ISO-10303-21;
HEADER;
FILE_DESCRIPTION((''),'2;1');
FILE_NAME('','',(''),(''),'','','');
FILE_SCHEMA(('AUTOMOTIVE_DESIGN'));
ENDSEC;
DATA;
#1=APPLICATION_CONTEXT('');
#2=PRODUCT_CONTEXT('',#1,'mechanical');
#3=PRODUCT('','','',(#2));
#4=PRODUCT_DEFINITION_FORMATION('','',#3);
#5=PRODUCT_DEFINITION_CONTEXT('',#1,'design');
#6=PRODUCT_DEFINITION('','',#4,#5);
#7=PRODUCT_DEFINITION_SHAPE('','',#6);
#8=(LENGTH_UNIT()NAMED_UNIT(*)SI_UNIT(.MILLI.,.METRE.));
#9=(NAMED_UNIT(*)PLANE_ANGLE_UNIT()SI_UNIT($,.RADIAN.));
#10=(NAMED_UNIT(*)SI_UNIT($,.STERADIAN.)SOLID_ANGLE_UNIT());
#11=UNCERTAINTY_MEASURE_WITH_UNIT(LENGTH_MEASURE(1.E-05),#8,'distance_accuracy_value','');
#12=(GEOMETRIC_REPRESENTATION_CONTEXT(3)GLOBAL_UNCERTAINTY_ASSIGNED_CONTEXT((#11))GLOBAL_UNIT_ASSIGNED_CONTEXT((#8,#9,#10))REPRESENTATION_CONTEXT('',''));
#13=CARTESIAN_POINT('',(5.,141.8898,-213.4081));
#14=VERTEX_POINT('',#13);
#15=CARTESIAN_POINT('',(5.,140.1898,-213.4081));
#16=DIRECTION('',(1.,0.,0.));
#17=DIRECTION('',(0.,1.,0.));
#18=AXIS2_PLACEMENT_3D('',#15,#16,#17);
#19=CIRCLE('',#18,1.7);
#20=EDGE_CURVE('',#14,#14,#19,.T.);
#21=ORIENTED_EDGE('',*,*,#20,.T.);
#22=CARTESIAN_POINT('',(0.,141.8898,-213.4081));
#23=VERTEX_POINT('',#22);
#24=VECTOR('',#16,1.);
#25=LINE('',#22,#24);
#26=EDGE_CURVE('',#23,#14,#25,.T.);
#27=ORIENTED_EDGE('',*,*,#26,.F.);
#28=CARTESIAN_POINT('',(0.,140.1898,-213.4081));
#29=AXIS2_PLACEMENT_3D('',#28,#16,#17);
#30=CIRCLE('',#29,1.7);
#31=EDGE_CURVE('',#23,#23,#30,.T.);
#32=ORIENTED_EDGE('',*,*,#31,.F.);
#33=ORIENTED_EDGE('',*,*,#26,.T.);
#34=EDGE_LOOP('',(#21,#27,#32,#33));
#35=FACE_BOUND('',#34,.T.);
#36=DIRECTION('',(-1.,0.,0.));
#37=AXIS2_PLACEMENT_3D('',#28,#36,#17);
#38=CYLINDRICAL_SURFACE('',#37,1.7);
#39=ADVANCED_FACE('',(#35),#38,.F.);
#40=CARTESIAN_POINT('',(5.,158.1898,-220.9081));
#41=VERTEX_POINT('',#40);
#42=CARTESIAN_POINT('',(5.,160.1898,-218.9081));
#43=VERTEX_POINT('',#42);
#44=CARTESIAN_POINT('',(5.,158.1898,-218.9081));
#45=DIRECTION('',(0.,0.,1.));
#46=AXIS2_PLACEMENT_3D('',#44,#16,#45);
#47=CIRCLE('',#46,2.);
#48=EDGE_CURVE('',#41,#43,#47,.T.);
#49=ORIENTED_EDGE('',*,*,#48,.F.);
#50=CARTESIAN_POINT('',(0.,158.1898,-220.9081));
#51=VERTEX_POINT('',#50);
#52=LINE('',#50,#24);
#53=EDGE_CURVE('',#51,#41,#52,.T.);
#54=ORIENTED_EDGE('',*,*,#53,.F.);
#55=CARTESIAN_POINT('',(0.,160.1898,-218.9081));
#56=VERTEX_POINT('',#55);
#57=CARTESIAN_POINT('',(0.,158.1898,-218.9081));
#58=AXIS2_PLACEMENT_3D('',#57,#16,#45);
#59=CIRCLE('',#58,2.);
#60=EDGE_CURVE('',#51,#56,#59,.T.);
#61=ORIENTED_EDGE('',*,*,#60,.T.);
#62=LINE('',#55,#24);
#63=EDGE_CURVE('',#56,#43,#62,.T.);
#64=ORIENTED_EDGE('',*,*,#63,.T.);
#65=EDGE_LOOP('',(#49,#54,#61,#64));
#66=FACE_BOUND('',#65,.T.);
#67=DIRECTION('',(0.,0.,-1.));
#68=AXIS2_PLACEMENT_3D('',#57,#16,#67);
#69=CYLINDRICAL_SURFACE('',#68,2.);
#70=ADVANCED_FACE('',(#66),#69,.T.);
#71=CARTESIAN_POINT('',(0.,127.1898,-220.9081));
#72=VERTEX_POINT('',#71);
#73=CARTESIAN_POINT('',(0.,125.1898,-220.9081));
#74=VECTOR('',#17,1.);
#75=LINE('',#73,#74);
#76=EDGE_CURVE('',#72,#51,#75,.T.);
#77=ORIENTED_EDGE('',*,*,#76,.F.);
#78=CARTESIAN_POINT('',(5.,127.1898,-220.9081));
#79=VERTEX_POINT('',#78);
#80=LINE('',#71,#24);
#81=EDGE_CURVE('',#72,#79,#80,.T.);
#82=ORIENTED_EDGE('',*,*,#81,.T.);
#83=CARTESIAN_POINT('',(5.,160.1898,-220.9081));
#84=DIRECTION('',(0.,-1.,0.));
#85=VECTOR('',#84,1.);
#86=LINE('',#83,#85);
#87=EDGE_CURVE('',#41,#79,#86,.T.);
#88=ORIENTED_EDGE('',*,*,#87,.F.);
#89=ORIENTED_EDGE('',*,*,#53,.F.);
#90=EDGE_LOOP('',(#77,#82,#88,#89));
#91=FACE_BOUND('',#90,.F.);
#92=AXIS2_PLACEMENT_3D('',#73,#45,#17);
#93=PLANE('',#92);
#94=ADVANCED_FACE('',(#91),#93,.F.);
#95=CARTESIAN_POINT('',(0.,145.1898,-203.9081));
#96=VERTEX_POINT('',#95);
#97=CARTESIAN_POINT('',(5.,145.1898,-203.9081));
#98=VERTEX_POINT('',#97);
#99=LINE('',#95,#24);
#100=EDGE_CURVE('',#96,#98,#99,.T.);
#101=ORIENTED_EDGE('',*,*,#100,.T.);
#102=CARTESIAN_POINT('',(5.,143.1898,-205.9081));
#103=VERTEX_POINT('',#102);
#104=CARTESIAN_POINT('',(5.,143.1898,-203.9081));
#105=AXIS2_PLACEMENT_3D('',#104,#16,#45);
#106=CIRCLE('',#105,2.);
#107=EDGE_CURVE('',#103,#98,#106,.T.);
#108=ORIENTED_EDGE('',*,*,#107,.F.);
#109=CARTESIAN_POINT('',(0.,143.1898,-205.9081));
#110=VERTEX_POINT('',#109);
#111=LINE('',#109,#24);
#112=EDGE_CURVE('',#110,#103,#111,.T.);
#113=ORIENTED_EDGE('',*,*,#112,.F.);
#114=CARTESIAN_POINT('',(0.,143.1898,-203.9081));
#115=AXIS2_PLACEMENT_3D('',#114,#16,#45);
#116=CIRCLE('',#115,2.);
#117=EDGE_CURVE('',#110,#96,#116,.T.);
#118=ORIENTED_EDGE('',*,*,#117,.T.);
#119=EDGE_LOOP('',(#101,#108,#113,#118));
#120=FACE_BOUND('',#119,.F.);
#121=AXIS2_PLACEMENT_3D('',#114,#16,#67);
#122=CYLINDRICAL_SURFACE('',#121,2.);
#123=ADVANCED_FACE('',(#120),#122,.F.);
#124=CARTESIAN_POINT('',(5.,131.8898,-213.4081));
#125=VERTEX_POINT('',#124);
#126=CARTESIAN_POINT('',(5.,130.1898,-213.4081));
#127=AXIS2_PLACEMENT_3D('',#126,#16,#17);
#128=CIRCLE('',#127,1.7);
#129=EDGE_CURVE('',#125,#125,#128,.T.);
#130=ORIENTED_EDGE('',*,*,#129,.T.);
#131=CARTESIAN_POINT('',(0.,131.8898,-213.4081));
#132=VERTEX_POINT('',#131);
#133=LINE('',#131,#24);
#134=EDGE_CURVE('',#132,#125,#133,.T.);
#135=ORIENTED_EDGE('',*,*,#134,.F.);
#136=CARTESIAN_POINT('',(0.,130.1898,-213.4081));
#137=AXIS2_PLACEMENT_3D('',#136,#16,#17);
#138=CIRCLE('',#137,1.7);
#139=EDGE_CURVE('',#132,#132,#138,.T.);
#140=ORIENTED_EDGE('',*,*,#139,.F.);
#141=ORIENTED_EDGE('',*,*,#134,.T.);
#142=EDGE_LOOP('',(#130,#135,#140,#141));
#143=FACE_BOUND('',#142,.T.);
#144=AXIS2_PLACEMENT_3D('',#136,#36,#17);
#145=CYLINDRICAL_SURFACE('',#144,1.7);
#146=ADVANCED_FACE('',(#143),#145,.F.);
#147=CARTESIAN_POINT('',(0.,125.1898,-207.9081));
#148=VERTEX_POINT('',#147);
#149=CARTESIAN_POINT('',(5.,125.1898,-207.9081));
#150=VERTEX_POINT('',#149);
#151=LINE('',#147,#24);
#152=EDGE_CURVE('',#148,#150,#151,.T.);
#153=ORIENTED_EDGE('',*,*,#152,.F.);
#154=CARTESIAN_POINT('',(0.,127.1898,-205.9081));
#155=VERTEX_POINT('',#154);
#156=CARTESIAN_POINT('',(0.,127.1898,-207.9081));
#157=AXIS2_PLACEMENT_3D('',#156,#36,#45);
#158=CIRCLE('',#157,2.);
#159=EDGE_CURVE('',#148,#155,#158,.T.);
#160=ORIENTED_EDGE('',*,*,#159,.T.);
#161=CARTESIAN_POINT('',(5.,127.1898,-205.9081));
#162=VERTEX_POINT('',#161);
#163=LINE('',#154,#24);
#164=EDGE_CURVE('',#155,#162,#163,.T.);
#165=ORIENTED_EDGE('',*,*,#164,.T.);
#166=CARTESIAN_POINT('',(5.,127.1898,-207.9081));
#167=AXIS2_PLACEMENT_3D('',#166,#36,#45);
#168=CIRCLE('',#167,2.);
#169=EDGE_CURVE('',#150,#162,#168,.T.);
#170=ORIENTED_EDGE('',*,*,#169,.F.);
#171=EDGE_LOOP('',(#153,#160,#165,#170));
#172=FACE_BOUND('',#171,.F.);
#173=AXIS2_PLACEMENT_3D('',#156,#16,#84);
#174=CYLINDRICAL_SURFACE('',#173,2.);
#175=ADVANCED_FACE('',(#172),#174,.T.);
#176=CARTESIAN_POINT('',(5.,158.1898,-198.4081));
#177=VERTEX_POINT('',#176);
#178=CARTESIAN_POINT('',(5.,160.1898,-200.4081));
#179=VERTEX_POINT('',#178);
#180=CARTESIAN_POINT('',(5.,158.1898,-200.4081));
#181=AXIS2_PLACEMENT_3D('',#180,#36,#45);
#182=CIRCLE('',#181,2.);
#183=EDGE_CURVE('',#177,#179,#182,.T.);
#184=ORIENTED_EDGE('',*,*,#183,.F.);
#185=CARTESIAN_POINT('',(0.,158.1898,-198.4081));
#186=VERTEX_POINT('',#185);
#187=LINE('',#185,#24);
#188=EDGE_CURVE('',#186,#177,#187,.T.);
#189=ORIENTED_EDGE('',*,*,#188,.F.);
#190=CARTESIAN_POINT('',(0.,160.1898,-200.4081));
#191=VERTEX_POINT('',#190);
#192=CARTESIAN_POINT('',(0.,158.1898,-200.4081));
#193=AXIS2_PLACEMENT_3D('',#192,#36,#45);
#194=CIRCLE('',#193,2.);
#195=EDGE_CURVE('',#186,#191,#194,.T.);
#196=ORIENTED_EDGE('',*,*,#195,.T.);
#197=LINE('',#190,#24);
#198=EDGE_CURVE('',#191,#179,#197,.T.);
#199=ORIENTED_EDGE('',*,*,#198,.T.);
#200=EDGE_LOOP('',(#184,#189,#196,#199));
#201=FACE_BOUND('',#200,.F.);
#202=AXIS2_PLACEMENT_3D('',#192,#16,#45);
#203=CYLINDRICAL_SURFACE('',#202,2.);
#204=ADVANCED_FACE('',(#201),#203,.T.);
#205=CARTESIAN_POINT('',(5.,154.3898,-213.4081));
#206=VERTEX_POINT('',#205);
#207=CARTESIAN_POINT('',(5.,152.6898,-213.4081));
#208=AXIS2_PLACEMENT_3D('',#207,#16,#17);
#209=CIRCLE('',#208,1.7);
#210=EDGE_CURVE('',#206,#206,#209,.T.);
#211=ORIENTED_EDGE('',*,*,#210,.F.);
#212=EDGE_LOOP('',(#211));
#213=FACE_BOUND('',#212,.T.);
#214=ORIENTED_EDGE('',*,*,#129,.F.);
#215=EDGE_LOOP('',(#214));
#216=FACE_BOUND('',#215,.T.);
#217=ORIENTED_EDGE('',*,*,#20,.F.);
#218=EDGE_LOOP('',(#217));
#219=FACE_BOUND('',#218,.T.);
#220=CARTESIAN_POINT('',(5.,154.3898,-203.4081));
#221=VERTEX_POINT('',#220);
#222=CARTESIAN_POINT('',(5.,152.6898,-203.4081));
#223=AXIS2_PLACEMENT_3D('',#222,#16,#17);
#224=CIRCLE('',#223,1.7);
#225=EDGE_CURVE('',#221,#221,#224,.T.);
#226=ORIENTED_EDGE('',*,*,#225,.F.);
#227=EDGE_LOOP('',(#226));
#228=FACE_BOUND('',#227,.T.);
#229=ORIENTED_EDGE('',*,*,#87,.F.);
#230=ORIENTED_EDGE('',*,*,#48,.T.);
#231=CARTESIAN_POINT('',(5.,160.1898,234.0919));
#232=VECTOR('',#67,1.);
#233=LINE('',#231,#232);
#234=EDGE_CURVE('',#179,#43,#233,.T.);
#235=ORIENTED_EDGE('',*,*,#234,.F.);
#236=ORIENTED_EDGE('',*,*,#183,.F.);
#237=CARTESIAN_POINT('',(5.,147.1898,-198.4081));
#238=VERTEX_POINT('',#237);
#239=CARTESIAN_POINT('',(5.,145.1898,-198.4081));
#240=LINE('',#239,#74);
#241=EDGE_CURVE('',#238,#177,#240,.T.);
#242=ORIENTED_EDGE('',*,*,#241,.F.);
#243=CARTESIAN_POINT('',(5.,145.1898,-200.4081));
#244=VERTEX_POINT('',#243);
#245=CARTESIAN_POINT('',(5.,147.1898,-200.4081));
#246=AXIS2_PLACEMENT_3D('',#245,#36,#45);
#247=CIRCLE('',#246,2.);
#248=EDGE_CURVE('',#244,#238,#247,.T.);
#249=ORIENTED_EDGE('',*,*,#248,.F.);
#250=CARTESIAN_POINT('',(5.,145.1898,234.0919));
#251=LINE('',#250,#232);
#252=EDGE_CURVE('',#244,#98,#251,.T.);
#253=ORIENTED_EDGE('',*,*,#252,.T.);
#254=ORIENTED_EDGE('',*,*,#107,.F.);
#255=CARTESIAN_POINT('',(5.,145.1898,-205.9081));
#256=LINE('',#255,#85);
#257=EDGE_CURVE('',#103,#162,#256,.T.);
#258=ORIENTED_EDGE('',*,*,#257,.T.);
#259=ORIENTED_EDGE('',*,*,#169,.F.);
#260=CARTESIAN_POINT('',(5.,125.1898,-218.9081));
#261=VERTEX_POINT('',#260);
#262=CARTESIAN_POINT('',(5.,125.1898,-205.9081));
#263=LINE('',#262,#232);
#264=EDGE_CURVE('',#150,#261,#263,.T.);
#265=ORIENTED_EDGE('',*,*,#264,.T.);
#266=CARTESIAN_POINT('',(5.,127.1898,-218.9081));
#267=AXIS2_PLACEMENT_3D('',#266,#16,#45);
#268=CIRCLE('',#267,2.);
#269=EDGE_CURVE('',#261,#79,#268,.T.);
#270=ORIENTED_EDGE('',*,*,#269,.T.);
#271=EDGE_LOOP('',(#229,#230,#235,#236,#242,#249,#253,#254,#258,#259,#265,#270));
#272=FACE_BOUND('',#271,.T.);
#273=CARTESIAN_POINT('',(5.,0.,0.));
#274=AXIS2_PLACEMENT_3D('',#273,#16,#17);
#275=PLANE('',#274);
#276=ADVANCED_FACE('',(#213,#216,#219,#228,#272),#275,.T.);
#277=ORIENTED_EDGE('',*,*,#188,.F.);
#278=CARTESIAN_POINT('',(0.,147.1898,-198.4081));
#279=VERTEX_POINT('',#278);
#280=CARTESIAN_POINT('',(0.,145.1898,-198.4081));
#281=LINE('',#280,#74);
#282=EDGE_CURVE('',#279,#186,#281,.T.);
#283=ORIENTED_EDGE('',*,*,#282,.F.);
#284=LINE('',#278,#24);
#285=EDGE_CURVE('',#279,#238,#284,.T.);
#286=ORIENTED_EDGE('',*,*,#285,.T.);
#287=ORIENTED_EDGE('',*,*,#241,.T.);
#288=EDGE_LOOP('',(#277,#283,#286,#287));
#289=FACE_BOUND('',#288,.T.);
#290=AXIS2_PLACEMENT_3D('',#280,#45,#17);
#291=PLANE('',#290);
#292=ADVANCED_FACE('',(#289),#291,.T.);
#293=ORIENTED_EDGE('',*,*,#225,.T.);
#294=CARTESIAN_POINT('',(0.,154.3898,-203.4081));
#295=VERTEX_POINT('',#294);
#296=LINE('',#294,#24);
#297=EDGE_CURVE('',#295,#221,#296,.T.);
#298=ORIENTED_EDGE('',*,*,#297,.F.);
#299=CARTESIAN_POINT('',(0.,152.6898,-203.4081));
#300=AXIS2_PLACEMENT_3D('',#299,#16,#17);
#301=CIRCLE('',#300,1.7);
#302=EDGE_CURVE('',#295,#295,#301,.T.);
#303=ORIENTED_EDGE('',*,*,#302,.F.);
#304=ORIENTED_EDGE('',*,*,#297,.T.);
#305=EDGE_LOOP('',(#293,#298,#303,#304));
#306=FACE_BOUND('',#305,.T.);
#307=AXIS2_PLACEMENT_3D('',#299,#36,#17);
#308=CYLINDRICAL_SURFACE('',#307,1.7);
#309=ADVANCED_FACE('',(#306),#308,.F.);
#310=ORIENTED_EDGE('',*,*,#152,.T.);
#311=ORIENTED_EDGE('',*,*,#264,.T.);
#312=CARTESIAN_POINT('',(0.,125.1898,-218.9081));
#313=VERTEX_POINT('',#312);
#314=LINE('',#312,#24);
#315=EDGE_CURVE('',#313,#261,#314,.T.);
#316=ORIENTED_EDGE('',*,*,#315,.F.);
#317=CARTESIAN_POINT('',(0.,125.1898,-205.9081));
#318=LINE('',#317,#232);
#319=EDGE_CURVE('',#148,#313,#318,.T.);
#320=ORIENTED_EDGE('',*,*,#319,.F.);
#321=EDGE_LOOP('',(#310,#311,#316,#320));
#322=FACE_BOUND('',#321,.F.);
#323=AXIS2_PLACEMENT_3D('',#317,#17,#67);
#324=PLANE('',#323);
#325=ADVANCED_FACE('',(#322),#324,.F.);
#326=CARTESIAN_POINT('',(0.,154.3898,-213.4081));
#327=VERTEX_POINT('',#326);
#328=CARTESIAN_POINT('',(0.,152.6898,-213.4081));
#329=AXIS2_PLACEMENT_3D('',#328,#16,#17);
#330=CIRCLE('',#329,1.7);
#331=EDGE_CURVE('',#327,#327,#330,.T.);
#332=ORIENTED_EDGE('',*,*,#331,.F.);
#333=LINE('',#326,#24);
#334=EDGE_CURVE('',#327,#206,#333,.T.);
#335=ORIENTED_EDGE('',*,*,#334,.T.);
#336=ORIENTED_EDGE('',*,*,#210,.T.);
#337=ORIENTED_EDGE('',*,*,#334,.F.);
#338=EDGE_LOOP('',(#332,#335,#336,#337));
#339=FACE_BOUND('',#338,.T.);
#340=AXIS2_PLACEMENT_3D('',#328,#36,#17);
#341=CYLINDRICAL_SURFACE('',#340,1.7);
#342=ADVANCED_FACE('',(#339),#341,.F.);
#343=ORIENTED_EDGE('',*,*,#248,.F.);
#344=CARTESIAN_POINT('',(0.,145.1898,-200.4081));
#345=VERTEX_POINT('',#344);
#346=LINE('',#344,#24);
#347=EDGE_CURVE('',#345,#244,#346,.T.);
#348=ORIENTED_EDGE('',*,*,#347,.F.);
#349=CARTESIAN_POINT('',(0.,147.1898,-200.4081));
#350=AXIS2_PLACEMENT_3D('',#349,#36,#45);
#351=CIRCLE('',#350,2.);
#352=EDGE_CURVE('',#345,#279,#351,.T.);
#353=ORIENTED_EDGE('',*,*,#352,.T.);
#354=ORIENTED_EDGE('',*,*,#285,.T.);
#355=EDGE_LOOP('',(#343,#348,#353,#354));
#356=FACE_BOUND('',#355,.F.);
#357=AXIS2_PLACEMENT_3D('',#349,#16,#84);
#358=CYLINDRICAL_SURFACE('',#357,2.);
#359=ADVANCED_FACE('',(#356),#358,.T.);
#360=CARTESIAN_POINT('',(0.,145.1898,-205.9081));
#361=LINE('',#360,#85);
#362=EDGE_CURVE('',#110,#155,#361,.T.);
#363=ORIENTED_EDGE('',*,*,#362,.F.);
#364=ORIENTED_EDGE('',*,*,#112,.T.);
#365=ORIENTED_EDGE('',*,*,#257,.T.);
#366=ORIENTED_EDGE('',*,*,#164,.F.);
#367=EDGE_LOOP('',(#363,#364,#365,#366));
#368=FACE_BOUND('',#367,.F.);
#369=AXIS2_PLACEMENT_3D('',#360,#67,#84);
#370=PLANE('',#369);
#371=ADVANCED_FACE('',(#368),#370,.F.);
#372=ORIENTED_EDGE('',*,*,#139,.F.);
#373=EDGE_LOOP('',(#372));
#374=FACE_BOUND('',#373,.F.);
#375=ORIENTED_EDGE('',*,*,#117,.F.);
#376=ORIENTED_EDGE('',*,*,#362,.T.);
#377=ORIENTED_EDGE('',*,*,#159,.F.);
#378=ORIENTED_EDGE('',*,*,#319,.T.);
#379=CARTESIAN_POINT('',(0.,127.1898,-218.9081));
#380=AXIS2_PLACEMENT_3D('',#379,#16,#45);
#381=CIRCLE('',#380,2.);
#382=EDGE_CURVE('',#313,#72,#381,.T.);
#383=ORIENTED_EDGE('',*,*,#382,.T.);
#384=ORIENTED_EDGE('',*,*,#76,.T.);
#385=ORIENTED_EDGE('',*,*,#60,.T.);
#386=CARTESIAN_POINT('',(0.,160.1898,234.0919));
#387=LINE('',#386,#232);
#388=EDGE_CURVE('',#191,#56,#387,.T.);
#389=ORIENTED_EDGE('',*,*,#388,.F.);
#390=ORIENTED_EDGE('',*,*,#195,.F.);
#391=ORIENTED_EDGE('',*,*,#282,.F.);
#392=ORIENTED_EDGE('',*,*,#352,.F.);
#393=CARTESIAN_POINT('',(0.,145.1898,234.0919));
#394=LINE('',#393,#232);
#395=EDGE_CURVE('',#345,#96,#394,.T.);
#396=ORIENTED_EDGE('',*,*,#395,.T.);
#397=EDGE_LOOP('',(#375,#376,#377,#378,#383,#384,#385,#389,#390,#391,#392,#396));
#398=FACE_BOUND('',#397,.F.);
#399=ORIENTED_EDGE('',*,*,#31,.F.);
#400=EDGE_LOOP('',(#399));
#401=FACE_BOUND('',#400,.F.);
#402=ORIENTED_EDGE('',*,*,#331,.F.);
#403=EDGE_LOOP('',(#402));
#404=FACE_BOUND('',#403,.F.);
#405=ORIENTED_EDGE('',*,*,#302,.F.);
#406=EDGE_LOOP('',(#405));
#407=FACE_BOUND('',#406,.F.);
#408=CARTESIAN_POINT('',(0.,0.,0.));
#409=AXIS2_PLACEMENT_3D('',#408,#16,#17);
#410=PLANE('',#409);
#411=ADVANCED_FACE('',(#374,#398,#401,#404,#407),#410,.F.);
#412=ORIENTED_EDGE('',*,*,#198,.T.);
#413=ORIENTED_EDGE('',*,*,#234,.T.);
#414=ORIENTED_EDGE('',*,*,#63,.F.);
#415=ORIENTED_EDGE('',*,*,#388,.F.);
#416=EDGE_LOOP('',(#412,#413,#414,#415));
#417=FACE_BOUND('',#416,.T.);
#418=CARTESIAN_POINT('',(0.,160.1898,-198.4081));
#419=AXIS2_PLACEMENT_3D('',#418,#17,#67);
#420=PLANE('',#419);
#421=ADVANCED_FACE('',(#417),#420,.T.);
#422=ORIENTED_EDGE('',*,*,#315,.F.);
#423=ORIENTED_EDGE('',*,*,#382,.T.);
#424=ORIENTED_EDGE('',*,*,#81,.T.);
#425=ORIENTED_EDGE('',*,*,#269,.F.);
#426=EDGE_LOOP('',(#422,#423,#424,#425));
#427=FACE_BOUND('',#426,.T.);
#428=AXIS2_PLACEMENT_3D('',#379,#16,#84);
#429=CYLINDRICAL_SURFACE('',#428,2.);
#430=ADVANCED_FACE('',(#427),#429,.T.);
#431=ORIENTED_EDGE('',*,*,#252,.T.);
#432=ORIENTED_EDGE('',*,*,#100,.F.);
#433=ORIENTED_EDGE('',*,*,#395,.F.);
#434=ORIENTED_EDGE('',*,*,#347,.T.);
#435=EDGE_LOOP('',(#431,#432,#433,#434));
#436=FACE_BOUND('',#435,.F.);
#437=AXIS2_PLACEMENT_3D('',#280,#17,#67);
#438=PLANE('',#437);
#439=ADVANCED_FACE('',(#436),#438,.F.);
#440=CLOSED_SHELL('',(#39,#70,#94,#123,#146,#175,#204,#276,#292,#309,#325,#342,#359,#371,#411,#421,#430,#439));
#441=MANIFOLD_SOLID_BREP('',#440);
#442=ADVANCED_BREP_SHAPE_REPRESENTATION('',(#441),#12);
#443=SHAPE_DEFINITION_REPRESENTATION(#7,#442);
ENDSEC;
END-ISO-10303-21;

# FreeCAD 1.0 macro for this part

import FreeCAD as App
import Part
import Sketcher
Q = App.Units.Quantity


def edges_at(feature, points):
    """Names of the edges that pass closest to the given points."""
    edges = feature.Shape.Edges
    near = lambda p: min(range(len(edges)), key=lambda i: edges[i].distToShape(Part.Vertex(*p))[0])
    return sorted({f"Edge{near(p) + 1}" for p in points})


def add_polygon(sketch, points):
    """Adds a closed chain of lines whose ends are joined by coincident constraints."""
    first, n = sketch.GeometryCount, len(points)
    for a, b in zip(points, points[1:] + points[:1]):
        sketch.addGeometry(Part.LineSegment(App.Vector(*a, 0), App.Vector(*b, 0)), False)
    for i in range(n):
        sketch.addConstraint(Sketcher.Constraint("Coincident", first + i, 2, first + (i + 1) % n, 1))

doc = App.newDocument("Part")
body = doc.addObject("PartDesign::Body", "Body")

# Sketch on YZ plane
sketch1 = doc.addObject("Sketcher::SketchObject", "Sketch")
body.addObject(sketch1)
sketch1.AttachmentSupport = (doc.YZ_Plane, [""])
sketch1.MapMode = "FlatFace"
add_polygon(sketch1, [(125.2, -205.9), (125.2, -220.9), (160.2, -220.9), (160.2, -198.4), (145.2, -198.4), (145.2, -205.9)])  # lines 0-5
sketch1.addGeometry(Part.Circle(App.Vector(130.2, -213.4, 0), App.Vector(0, 0, 1), 1.7), False)  # 6
sketch1.addGeometry(Part.Circle(App.Vector(140.2, -213.4, 0), App.Vector(0, 0, 1), 1.7), False)  # 7
sketch1.addGeometry(Part.Circle(App.Vector(152.7, -203.4, 0), App.Vector(0, 0, 1), 1.7), False)  # 8
sketch1.addGeometry(Part.Circle(App.Vector(152.7, -213.4, 0), App.Vector(0, 0, 1), 1.7), False)  # 9
sketch1.addConstraint([
    Sketcher.Constraint("Vertical", 0),
    Sketcher.Constraint("Horizontal", 1),
    Sketcher.Constraint("Vertical", 2),
    Sketcher.Constraint("Horizontal", 3),
    Sketcher.Constraint("Vertical", 4),
    Sketcher.Constraint("Horizontal", 5),
    Sketcher.Constraint("Equal", 6, 7),
    Sketcher.Constraint("Equal", 7, 8),
    Sketcher.Constraint("Equal", 8, 9),
    Sketcher.Constraint("Horizontal", 6, 3, 7, 3),
    Sketcher.Constraint("Horizontal", 7, 3, 9, 3),
    Sketcher.Constraint("Vertical", 8, 3, 9, 3),
    Sketcher.Constraint("Equal", 3, 0),
    Sketcher.Constraint("Diameter", 6, Q("3.4 mm")),
    Sketcher.Constraint("DistanceX", 3, 2, 3, 1, Q("15 mm")),
    Sketcher.Constraint("DistanceY", 4, 2, 4, 1, Q("7.5 mm")),
    Sketcher.Constraint("DistanceX", 6, 3, 7, 3, Q("10 mm")),
    Sketcher.Constraint("DistanceY", 7, 3, 8, 3, Q("10 mm")),
    Sketcher.Constraint("DistanceX", 0, 2, 6, 3, Q("5 mm")),
    Sketcher.Constraint("DistanceY", 8, 3, 2, 2, Q("5 mm")),
    Sketcher.Constraint("DistanceX", 7, 3, 3, 2, Q("5 mm")),
    Sketcher.Constraint("DistanceX", 9, 3, 1, 2, Q("7.5 mm")),
    Sketcher.Constraint("DistanceY", 6, 3, -1, 1, Q("213.408 mm")),
    Sketcher.Constraint("DistanceX", -1, 1, 6, 3, Q("130.1898 mm")),
])
pad1 = doc.addObject("PartDesign::Pad", "Pad")
body.addObject(pad1)
pad1.Profile = sketch1
pad1.Length = 5
doc.recompute()

fillet = doc.addObject("PartDesign::Fillet", "Fillet")
body.addObject(fillet)
fillet.Base = (pad1, edges_at(pad1, [
    (2.5, 160.19, -220.908),
    (2.5, 160.19, -198.408),
    (2.5, 145.19, -198.408),
    (2.5, 145.19, -205.908),
    (2.5, 125.19, -205.908),
    (2.5, 125.19, -220.908),
]))
fillet.Radius = 2

doc.recompute()
